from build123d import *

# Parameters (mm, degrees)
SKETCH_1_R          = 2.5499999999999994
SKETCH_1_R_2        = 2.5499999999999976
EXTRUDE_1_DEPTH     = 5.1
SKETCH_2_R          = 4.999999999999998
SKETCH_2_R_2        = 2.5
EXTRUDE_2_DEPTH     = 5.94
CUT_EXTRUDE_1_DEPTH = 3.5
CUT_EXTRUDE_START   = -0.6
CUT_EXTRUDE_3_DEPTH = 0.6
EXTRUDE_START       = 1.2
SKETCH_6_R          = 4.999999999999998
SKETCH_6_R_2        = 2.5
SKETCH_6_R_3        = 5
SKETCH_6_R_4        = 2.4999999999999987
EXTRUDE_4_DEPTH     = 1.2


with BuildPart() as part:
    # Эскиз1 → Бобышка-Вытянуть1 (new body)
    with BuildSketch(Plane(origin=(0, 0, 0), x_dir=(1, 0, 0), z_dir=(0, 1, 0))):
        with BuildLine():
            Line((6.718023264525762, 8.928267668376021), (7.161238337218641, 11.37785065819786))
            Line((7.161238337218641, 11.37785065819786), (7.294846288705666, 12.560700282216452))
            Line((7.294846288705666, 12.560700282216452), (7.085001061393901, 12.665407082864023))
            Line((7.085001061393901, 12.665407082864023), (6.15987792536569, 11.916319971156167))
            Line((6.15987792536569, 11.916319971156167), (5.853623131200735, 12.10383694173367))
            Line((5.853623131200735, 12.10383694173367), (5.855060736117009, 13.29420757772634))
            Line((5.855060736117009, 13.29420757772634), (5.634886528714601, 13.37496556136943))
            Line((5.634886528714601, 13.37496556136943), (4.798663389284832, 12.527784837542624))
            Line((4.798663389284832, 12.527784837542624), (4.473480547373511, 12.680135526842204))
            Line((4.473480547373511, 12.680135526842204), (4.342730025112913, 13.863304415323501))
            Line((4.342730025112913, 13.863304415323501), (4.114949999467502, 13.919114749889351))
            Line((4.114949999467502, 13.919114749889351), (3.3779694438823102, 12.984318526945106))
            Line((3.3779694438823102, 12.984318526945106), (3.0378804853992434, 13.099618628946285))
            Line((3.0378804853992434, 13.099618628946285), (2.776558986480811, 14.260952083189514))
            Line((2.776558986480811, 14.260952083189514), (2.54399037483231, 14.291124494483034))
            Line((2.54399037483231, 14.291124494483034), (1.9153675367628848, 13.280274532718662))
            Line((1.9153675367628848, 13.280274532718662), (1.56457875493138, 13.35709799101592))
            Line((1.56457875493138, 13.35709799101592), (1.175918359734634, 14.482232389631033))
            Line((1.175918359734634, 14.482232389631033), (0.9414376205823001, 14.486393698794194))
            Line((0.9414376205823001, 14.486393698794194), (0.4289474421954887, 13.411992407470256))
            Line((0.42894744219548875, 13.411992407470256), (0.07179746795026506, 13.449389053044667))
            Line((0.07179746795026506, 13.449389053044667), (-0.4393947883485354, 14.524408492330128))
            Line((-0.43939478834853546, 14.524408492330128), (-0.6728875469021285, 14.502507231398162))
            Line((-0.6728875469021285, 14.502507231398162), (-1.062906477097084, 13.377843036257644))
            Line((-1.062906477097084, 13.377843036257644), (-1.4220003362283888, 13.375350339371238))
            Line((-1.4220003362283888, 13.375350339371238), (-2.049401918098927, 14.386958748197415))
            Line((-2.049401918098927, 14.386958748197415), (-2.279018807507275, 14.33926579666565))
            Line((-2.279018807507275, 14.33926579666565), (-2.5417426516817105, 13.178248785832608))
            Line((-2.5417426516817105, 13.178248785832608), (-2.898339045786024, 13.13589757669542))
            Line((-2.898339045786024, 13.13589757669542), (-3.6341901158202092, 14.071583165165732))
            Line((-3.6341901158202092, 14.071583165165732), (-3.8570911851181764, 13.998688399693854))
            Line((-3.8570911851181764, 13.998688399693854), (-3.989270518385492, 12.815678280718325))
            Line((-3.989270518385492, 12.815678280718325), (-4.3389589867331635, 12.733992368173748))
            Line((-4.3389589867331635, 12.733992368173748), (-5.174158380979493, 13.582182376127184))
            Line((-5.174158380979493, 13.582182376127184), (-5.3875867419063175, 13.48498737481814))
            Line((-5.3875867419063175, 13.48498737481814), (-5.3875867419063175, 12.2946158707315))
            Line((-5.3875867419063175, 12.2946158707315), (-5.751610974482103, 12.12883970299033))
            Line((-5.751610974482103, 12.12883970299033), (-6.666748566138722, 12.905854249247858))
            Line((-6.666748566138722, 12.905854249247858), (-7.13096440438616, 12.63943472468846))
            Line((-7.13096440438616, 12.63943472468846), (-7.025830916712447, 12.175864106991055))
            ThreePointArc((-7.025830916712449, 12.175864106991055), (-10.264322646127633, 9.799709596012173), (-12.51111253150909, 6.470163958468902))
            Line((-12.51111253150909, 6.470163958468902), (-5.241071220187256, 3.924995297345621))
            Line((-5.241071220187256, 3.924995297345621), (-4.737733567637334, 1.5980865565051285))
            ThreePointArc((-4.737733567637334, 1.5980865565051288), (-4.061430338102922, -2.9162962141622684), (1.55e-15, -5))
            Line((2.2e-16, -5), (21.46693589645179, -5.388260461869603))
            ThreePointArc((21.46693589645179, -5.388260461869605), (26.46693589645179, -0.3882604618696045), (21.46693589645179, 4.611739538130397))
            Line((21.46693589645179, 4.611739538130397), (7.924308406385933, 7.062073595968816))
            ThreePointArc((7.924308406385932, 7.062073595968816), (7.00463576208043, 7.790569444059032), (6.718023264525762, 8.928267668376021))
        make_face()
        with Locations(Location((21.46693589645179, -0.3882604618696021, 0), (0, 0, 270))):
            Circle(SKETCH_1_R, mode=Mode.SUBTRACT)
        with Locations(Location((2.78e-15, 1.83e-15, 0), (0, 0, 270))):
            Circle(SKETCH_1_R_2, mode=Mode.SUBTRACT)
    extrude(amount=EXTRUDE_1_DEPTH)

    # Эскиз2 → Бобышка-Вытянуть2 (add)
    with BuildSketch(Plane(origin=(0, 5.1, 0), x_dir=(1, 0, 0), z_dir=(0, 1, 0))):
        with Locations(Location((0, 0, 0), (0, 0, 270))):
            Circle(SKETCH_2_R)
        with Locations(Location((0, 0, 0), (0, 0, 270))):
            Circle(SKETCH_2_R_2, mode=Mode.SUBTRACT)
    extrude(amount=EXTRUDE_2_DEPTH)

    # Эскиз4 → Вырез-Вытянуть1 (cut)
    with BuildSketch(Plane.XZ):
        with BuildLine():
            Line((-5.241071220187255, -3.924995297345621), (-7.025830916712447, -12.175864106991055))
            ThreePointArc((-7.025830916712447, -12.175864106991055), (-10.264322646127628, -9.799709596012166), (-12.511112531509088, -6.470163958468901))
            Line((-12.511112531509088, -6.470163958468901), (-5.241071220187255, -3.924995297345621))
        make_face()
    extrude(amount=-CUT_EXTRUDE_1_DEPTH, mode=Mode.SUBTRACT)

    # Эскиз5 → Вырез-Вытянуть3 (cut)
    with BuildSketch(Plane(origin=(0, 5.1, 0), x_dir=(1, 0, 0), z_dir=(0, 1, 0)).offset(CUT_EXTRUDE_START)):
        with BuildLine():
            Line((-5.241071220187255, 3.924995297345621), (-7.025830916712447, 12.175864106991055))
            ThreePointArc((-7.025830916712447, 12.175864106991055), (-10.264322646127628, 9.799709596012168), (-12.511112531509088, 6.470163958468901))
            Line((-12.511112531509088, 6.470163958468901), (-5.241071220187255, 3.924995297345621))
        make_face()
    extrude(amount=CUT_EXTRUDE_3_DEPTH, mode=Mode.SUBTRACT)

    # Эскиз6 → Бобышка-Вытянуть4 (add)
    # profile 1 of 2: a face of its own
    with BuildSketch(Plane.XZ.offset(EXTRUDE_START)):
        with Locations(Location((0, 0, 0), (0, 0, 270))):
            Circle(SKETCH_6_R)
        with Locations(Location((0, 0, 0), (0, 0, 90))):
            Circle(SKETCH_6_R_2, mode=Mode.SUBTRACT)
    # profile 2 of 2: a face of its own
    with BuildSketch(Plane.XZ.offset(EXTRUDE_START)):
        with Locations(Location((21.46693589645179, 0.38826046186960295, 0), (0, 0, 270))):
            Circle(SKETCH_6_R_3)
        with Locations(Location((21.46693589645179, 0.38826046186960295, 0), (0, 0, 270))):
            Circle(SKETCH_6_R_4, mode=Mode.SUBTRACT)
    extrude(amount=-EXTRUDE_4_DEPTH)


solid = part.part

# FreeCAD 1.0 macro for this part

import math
import FreeCAD as App
import Part
import Sketcher

V = App.Vector

doc = App.newDocument("Part")
body = doc.addObject("PartDesign::Body", "Body")

# Sketch on XZ plane
sketch1 = body.newObject("Sketcher::SketchObject", "Sketch")
sketch1.AttachmentSupport = (doc.getObject("XZ_Plane"), [""])
sketch1.MapMode = "FlatFace"
sketch1.addGeometry([
    Part.LineSegment(V(6.718023, -8.928268, 0), V(7.161238, -11.377851, 0)),  # 0
    Part.LineSegment(V(7.161238, -11.377851, 0), V(7.294846, -12.5607, 0)),  # 1
    Part.LineSegment(V(7.294846, -12.5607, 0), V(7.085001, -12.665407, 0)),  # 2
    Part.LineSegment(V(7.085001, -12.665407, 0), V(6.159878, -11.91632, 0)),  # 3
    Part.LineSegment(V(6.159878, -11.91632, 0), V(5.853623, -12.103837, 0)),  # 4
    Part.LineSegment(V(5.853623, -12.103837, 0), V(5.855061, -13.294208, 0)),  # 5
    Part.LineSegment(V(5.855061, -13.294208, 0), V(5.634887, -13.374966, 0)),  # 6
    Part.LineSegment(V(5.634887, -13.374966, 0), V(4.798663, -12.527785, 0)),  # 7
    Part.LineSegment(V(4.798663, -12.527785, 0), V(4.473481, -12.680136, 0)),  # 8
    Part.LineSegment(V(4.473481, -12.680136, 0), V(4.34273, -13.863304, 0)),  # 9
    Part.LineSegment(V(4.34273, -13.863304, 0), V(4.11495, -13.919115, 0)),  # 10
    Part.LineSegment(V(4.11495, -13.919115, 0), V(3.377969, -12.984319, 0)),  # 11
    Part.LineSegment(V(3.377969, -12.984319, 0), V(3.03788, -13.099619, 0)),  # 12
    Part.LineSegment(V(3.03788, -13.099619, 0), V(2.776559, -14.260952, 0)),  # 13
    Part.LineSegment(V(2.776559, -14.260952, 0), V(2.54399, -14.291124, 0)),  # 14
    Part.LineSegment(V(2.54399, -14.291124, 0), V(1.915368, -13.280275, 0)),  # 15
    Part.LineSegment(V(1.915368, -13.280275, 0), V(1.564579, -13.357098, 0)),  # 16
    Part.LineSegment(V(1.564579, -13.357098, 0), V(1.175918, -14.482232, 0)),  # 17
    Part.LineSegment(V(1.175918, -14.482232, 0), V(0.941438, -14.486394, 0)),  # 18
    Part.LineSegment(V(0.941438, -14.486394, 0), V(0.428947, -13.411992, 0)),  # 19
    Part.LineSegment(V(0.428947, -13.411992, 0), V(0.071797, -13.449389, 0)),  # 20
    Part.LineSegment(V(0.071797, -13.449389, 0), V(-0.439395, -14.524408, 0)),  # 21
    Part.LineSegment(V(-0.439395, -14.524408, 0), V(-0.672888, -14.502507, 0)),  # 22
    Part.LineSegment(V(-0.672888, -14.502507, 0), V(-1.062906, -13.377843, 0)),  # 23
    Part.LineSegment(V(-1.062906, -13.377843, 0), V(-1.422, -13.37535, 0)),  # 24
    Part.LineSegment(V(-1.422, -13.37535, 0), V(-2.049402, -14.386959, 0)),  # 25
    Part.LineSegment(V(-2.049402, -14.386959, 0), V(-2.279019, -14.339266, 0)),  # 26
    Part.LineSegment(V(-2.279019, -14.339266, 0), V(-2.541743, -13.178249, 0)),  # 27
    Part.LineSegment(V(-2.541743, -13.178249, 0), V(-2.898339, -13.135898, 0)),  # 28
    Part.LineSegment(V(-2.898339, -13.135898, 0), V(-3.63419, -14.071583, 0)),  # 29
    Part.LineSegment(V(-3.63419, -14.071583, 0), V(-3.857091, -13.998688, 0)),  # 30
    Part.LineSegment(V(-3.857091, -13.998688, 0), V(-3.989271, -12.815678, 0)),  # 31
    Part.LineSegment(V(-3.989271, -12.815678, 0), V(-4.338959, -12.733992, 0)),  # 32
    Part.LineSegment(V(-4.338959, -12.733992, 0), V(-5.174158, -13.582182, 0)),  # 33
    Part.LineSegment(V(-5.174158, -13.582182, 0), V(-5.387587, -13.484987, 0)),  # 34
    Part.LineSegment(V(-5.387587, -13.484987, 0), V(-5.387587, -12.294616, 0)),  # 35
    Part.LineSegment(V(-5.387587, -12.294616, 0), V(-5.751611, -12.12884, 0)),  # 36
    Part.LineSegment(V(-5.751611, -12.12884, 0), V(-6.666749, -12.905854, 0)),  # 37
    Part.LineSegment(V(-6.666749, -12.905854, 0), V(-7.130964, -12.639435, 0)),  # 38
    Part.LineSegment(V(-7.130964, -12.639435, 0), V(-7.025831, -12.175864, 0)),  # 39
    Part.ArcOfCircle(Part.Circle(V(-1.809542, -1.671548, 0), V(0, 0, 1), 11.728185), math.radians(-155.848394), math.radians(-116.408319)),  # 40
    Part.LineSegment(V(-12.511113, -6.470164, 0), V(-5.241071, -3.924995, 0)),  # 41
    Part.LineSegment(V(-5.241071, -3.924995, 0), V(-4.737734, -1.598087, 0)),  # 42
    Part.ArcOfCircle(Part.Circle(V(0, 0, 0), V(0, 0, 1), 5), math.radians(90), math.radians(198.639783)),  # 43
    Part.LineSegment(V(0, 5, 0), V(21.466936, 5.38826, 0)),  # 44
    Part.ArcOfCircle(Part.Circle(V(21.466936, 0.38826, 0), V(0, 0, 1), 5), math.radians(-90), math.radians(90)),  # 45
    Part.LineSegment(V(21.466936, -4.61174, 0), V(7.924308, -7.062074, 0)),  # 46
    Part.ArcOfCircle(Part.Circle(V(8.538236, -8.78187, 0), V(0, 0, 1), 1.826091), math.radians(109.645397), math.radians(184.598331)),  # 47
    Part.Circle(V(21.466936, 0.38826, 0), V(0, 0, 1), 2.55),  # 48
    Part.Circle(V(0, 0, 0), V(0, 0, 1), 2.55),  # 49
], False)
sketch1.addConstraint([
    Sketcher.Constraint("Coincident", 0, 2, 1, 1),
    Sketcher.Constraint("Coincident", 1, 2, 2, 1),
    Sketcher.Constraint("Coincident", 2, 2, 3, 1),
    Sketcher.Constraint("Coincident", 3, 2, 4, 1),
    Sketcher.Constraint("Coincident", 4, 2, 5, 1),
    Sketcher.Constraint("Coincident", 5, 2, 6, 1),
    Sketcher.Constraint("Coincident", 6, 2, 7, 1),
    Sketcher.Constraint("Coincident", 7, 2, 8, 1),
    Sketcher.Constraint("Coincident", 8, 2, 9, 1),
    Sketcher.Constraint("Coincident", 9, 2, 10, 1),
    Sketcher.Constraint("Coincident", 10, 2, 11, 1),
    Sketcher.Constraint("Coincident", 11, 2, 12, 1),
    Sketcher.Constraint("Coincident", 12, 2, 13, 1),
    Sketcher.Constraint("Coincident", 13, 2, 14, 1),
    Sketcher.Constraint("Coincident", 14, 2, 15, 1),
    Sketcher.Constraint("Coincident", 15, 2, 16, 1),
    Sketcher.Constraint("Coincident", 16, 2, 17, 1),
    Sketcher.Constraint("Coincident", 17, 2, 18, 1),
    Sketcher.Constraint("Coincident", 18, 2, 19, 1),
    Sketcher.Constraint("Coincident", 19, 2, 20, 1),
    Sketcher.Constraint("Coincident", 20, 2, 21, 1),
    Sketcher.Constraint("Coincident", 21, 2, 22, 1),
    Sketcher.Constraint("Coincident", 22, 2, 23, 1),
    Sketcher.Constraint("Coincident", 23, 2, 24, 1),
    Sketcher.Constraint("Coincident", 24, 2, 25, 1),
    Sketcher.Constraint("Coincident", 25, 2, 26, 1),
    Sketcher.Constraint("Coincident", 26, 2, 27, 1),
    Sketcher.Constraint("Coincident", 27, 2, 28, 1),
    Sketcher.Constraint("Coincident", 28, 2, 29, 1),
    Sketcher.Constraint("Coincident", 29, 2, 30, 1),
    Sketcher.Constraint("Coincident", 30, 2, 31, 1),
    Sketcher.Constraint("Coincident", 31, 2, 32, 1),
    Sketcher.Constraint("Coincident", 32, 2, 33, 1),
    Sketcher.Constraint("Coincident", 33, 2, 34, 1),
    Sketcher.Constraint("Coincident", 34, 2, 35, 1),
    Sketcher.Constraint("Coincident", 35, 2, 36, 1),
    Sketcher.Constraint("Coincident", 36, 2, 37, 1),
    Sketcher.Constraint("Coincident", 37, 2, 38, 1),
    Sketcher.Constraint("Coincident", 38, 2, 39, 1),
    Sketcher.Constraint("Coincident", 39, 2, 40, 2),
    Sketcher.Constraint("Coincident", 40, 1, 41, 1),
    Sketcher.Constraint("Coincident", 41, 2, 42, 1),
    Sketcher.Constraint("Coincident", 42, 2, 43, 2),
    Sketcher.Constraint("Coincident", 43, 1, 44, 1),
    Sketcher.Constraint("Coincident", 44, 2, 45, 2),
    Sketcher.Constraint("Coincident", 45, 1, 46, 1),
    Sketcher.Constraint("Coincident", 46, 2, 47, 1),
    Sketcher.Constraint("Coincident", 47, 2, 0, 1),
    Sketcher.Constraint("Vertical", 35),
    Sketcher.Constraint("Coincident", 43, 3, -1, 1),
    Sketcher.Constraint("Coincident", 49, 3, -1, 1),
    Sketcher.Constraint("Coincident", 48, 3, 45, 3),
    Sketcher.Constraint("PointOnObject", 43, 1, -2),
    Sketcher.Constraint("Radius", 43, 5.0),
    Sketcher.Constraint("Radius", 45, 5.0),
    Sketcher.Constraint("Diameter", 48, 5.1),
    Sketcher.Constraint("Diameter", 49, 5.1),
    Sketcher.Constraint("Radius", 47, 1.826091),
    Sketcher.Constraint("DistanceX", -1, 1, 2, 2, 7.085001),
    Sketcher.Constraint("DistanceX", 24, 2, -1, 1, 1.422),
    Sketcher.Constraint("Radius", 40, 11.728185),
    Sketcher.Constraint("DistanceY", 35, 1, 35, 2, 1.190372),
    Sketcher.Constraint("DistanceY", 1, 2, -1, 1, 12.5607),
    Sketcher.Constraint("DistanceX", 25, 2, -1, 1, 2.049402),
    Sketcher.Constraint("DistanceX", 47, 3, 45, 3, 12.9287),
    Sketcher.Constraint("DistanceY", 5, 2, 2, 2, 0.6288),
    Sketcher.Constraint("DistanceY", 8, 2, 4, 2, 0.576299),
    Sketcher.Constraint("DistanceY", 12, 2, 11, 2, 0.1153),
    Sketcher.Constraint("DistanceX", 12, 2, 8, 2, 1.4356),
    Sketcher.Constraint("DistanceX", 15, 2, 11, 2, 1.462602),
    Sketcher.Constraint("DistanceX", 16, 2, 12, 2, 1.473302),
    Sketcher.Constraint("DistanceY", 18, 2, 19, 2, 1.074401),
    Sketcher.Constraint("DistanceY", 21, 2, 22, 2, 0.021901),
    Sketcher.Constraint("DistanceX", 25, 2, 20, 2, 2.121199),
    Sketcher.Constraint("DistanceY", 24, 2, 27, 2, 0.197102),
    Sketcher.Constraint("DistanceX", 30, 2, 29, 2, 0.222901),
    Sketcher.Constraint("DistanceX", 33, 2, 32, 2, 0.835199),
    Sketcher.Constraint("DistanceY", 29, 2, 33, 2, 0.489401),
    Sketcher.Constraint("DistanceY", 30, 2, 34, 2, 0.513701),
    Sketcher.Constraint("DistanceY", 39, 2, 40, 1, 5.7057),
    Sketcher.Constraint("DistanceX", 40, 1, 36, 2, 6.759502),
    Sketcher.Constraint("DistanceX", 47, 3, 44, 2, 12.9287),
    Sketcher.Constraint("DistanceX", 47, 3, 45, 1, 12.9287),
    Sketcher.Constraint("DistanceX", 4, 2, 47, 2, 0.8644),
    Sketcher.Constraint("Distance", 1, 1.190372),
    Sketcher.Constraint("Distance", 3, 1.190372),
    Sketcher.Constraint("Distance", 5, 1.190372),
    Sketcher.Constraint("Distance", 7, 1.190372),
    Sketcher.Constraint("Distance", 9, 1.190372),
    Sketcher.Constraint("Distance", 11, 1.190372),
    Sketcher.Constraint("Distance", 13, 1.190372),
    Sketcher.Constraint("Distance", 15, 1.190372),
    Sketcher.Constraint("Distance", 17, 1.190372),
    Sketcher.Constraint("Distance", 19, 1.190372),
    Sketcher.Constraint("Distance", 21, 1.190372),
    Sketcher.Constraint("Distance", 23, 1.190372),
    Sketcher.Constraint("Distance", 25, 1.190372),
    Sketcher.Constraint("Distance", 27, 1.190372),
    Sketcher.Constraint("Distance", 29, 1.190372),
    Sketcher.Constraint("Distance", 31, 1.190372),
    Sketcher.Constraint("Distance", 33, 1.190372),
    Sketcher.Constraint("Distance", 37, 1.200512),
    Sketcher.Constraint("DistanceX", 40, 3, -1, 1, 1.809542),
    Sketcher.Constraint("DistanceY", -1, 1, 45, 3, 0.38826),
    Sketcher.Constraint("DistanceY", 47, 3, -1, 1, 8.78187),
    Sketcher.Constraint("DistanceX", -1, 1, 0, 2, 7.161238),
    Sketcher.Constraint("DistanceY", 0, 2, -1, 1, 11.377851),
    Sketcher.Constraint("DistanceY", 3, 2, -1, 1, 11.91632),
    Sketcher.Constraint("DistanceX", -1, 1, 5, 2, 5.855061),
    Sketcher.Constraint("DistanceX", -1, 1, 8, 2, 4.473481),
    Sketcher.Constraint("DistanceX", -1, 1, 9, 2, 4.34273),
    Sketcher.Constraint("DistanceX", -1, 1, 10, 2, 4.11495),
    Sketcher.Constraint("DistanceX", -1, 1, 11, 2, 3.377969),
    Sketcher.Constraint("DistanceY", 11, 2, -1, 1, 12.984319),
    Sketcher.Constraint("DistanceX", -1, 1, 13, 2, 2.776559),
    Sketcher.Constraint("DistanceX", -1, 1, 14, 2, 2.54399),
    Sketcher.Constraint("DistanceX", -1, 1, 17, 2, 1.175918),
    Sketcher.Constraint("DistanceY", 20, 2, -1, 1, 13.449389),
    Sketcher.Constraint("DistanceY", 21, 2, -1, 1, 14.524408),
    Sketcher.Constraint("DistanceY", 24, 2, -1, 1, 13.37535),
    Sketcher.Constraint("DistanceX", 26, 2, -1, 1, 2.279019),
    Sketcher.Constraint("DistanceX", 28, 2, -1, 1, 2.898339),
    Sketcher.Constraint("DistanceX", 29, 2, -1, 1, 3.63419),
    Sketcher.Constraint("DistanceY", 30, 2, -1, 1, 13.998688),
    Sketcher.Constraint("DistanceX", 31, 2, -1, 1, 3.989271),
    Sketcher.Constraint("DistanceX", 32, 2, -1, 1, 4.338959),
    Sketcher.Constraint("DistanceX", 36, 2, -1, 1, 5.751611),
    Sketcher.Constraint("DistanceY", 36, 2, -1, 1, 12.12884),
    Sketcher.Constraint("DistanceX", 37, 2, -1, 1, 6.666749),
    Sketcher.Constraint("DistanceX", 41, 2, -1, 1, 5.241071),
    Sketcher.Constraint("DistanceX", -1, 1, 46, 2, 7.924308),
    Sketcher.Constraint("DistanceY", 40, 3, 45, 3, 2.059808),
    Sketcher.Constraint("DistanceX", 40, 3, 47, 3, 10.347778),
    Sketcher.Constraint("DistanceY", 2, 2, 40, 3, 10.993859),
    Sketcher.Constraint("DistanceY", 6, 2, 4, 2, 1.271129),
    Sketcher.Constraint("DistanceX", 6, 2, 3, 2, 0.524991),
    Sketcher.Constraint("DistanceX", 7, 2, 4, 2, 1.05496),
    Sketcher.Constraint("DistanceY", 6, 2, 7, 2, 0.847181),
    Sketcher.Constraint("DistanceY", 14, 2, 10, 2, 0.37201),
    Sketcher.Constraint("DistanceY", 16, 2, 12, 2, 0.257479),
    Sketcher.Constraint("DistanceX", 18, 2, 17, 2, 0.234481),
    Sketcher.Constraint("DistanceY", 18, 2, 17, 2, 0.004161),
    Sketcher.Constraint("DistanceX", 23, 2, 22, 2, 0.390019),
    Sketcher.Constraint("DistanceX", 23, 2, 21, 2, 0.623512),
    Sketcher.Constraint("DistanceY", 22, 2, 26, 2, 0.163241),
    Sketcher.Constraint("DistanceY", 27, 2, 28, 2, 0.042351),
    Sketcher.Constraint("DistanceX", 34, 2, 33, 2, 0.213428),
    Sketcher.Constraint("DistanceY", 37, 2, 38, 2, 0.26642),
    Sketcher.Constraint("DistanceX", 40, 1, 38, 2, 5.380148),
    Sketcher.Constraint("DistanceY", 40, 1, 41, 2, 2.545169),
    Sketcher.Constraint("DistanceY", 41, 2, 42, 2, 2.326909),
])
pad1 = body.newObject("PartDesign::Pad", "Pad")
pad1.Profile = sketch1
pad1.Length = 5.1
pad1.Reversed = True

# Sketch on XZ plane
sketch2 = body.newObject("Sketcher::SketchObject", "Sketch001")
sketch2.AttachmentSupport = (doc.getObject("XZ_Plane"), [""])
sketch2.MapMode = "FlatFace"
sketch2.AttachmentOffset = App.Placement(V(0, 0, -5.1), App.Rotation())
sketch2.addGeometry([
    Part.Circle(V(0, 0, 0), V(0, 0, 1), 5),
    Part.Circle(V(0, 0, 0), V(0, 0, 1), 2.5),
], False)
sketch2.addConstraint([
    Sketcher.Constraint("Coincident", 0, 3, -1, 1),
    Sketcher.Constraint("Coincident", 1, 3, -1, 1),
    Sketcher.Constraint("Diameter", 0, 10.0),
    Sketcher.Constraint("Diameter", 1, 5.0),
])
pad2 = body.newObject("PartDesign::Pad", "Pad001")
pad2.Profile = sketch2
pad2.Length = 5.94
pad2.Reversed = True

# Sketch on XZ plane
sketch3 = body.newObject("Sketcher::SketchObject", "Sketch002")
sketch3.AttachmentSupport = (doc.getObject("XZ_Plane"), [""])
sketch3.MapMode = "FlatFace"
sketch3.addGeometry([
    Part.LineSegment(V(-7, -12, 0), V(-5, -4, 0)),
    Part.LineSegment(V(-5, -4, 0), V(-13, -6, 0)),
    Part.ArcOfCircle(Part.Circle(V(-2, -2, 0), V(0, 0, 1), 12), math.radians(-156), math.radians(-116)),
], False)
sketch3.addConstraint([
    Sketcher.Constraint("Coincident", 0, 2, 1, 1),
    Sketcher.Constraint("Coincident", 1, 2, 2, 1),
    Sketcher.Constraint("Coincident", 2, 2, 0, 1),
    Sketcher.Constraint("Radius", 2, 11.728185),
    Sketcher.Constraint("DistanceY", 2, 2, 1, 2, 5.7057),
    Sketcher.Constraint("DistanceX", 2, 3, -1, 1, 1.809542),
    Sketcher.Constraint("DistanceX", 0, 2, -1, 1, 5.241071),
    Sketcher.Constraint("DistanceX", 2, 2, -1, 1, 7.025831),
    Sketcher.Constraint("DistanceY", 1, 2, 0, 2, 2.545169),
    Sketcher.Constraint("DistanceY", 2, 3, -1, 1, 1.671548),
])
pocket1 = body.newObject("PartDesign::Pocket", "Pocket")
pocket1.Profile = sketch3
pocket1.Length = 3.5

# Sketch on XZ plane
sketch4 = body.newObject("Sketcher::SketchObject", "Sketch003")
sketch4.AttachmentSupport = (doc.getObject("XZ_Plane"), [""])
sketch4.MapMode = "FlatFace"
sketch4.AttachmentOffset = App.Placement(V(0, 0, -4.5), App.Rotation())
sketch4.addGeometry([
    Part.LineSegment(V(-5, -4, 0), V(-7, -12, 0)),
    Part.ArcOfCircle(Part.Circle(V(-2, -2, 0), V(0, 0, 1), 12), math.radians(-156), math.radians(-116)),
    Part.LineSegment(V(-13, -6, 0), V(-5, -4, 0)),
], False)
sketch4.addConstraint([
    Sketcher.Constraint("Coincident", 0, 2, 1, 2),
    Sketcher.Constraint("Coincident", 1, 1, 2, 1),
    Sketcher.Constraint("Coincident", 2, 2, 0, 1),
    Sketcher.Constraint("Radius", 1, 11.728185),
    Sketcher.Constraint("DistanceY", 0, 2, 1, 1, 5.7057),
    Sketcher.Constraint("DistanceX", 1, 3, -1, 1, 1.809542),
    Sketcher.Constraint("DistanceX", 0, 2, -1, 1, 7.025831),
    Sketcher.Constraint("DistanceX", 2, 2, -1, 1, 5.241071),
    Sketcher.Constraint("DistanceY", 1, 1, 2, 2, 2.545169),
    Sketcher.Constraint("DistanceY", 1, 3, -1, 1, 1.671548),
])
pocket2 = body.newObject("PartDesign::Pocket", "Pocket001")
pocket2.Profile = sketch4
pocket2.Length = 0.6

# Sketch on XZ plane
sketch5 = body.newObject("Sketcher::SketchObject", "Sketch004")
sketch5.AttachmentSupport = (doc.getObject("XZ_Plane"), [""])
sketch5.MapMode = "FlatFace"
sketch5.AttachmentOffset = App.Placement(V(0, 0, 1.2), App.Rotation())
sketch5.addGeometry([
    Part.Circle(V(0, 0, 0), V(0, 0, 1), 5),
    Part.Circle(V(0, 0, 0), V(0, 0, 1), 2.5),
    Part.Circle(V(21.5, 0.4, 0), V(0, 0, 1), 5),
    Part.Circle(V(21.5, 0.4, 0), V(0, 0, 1), 2.5),
], False)
sketch5.addConstraint([
    Sketcher.Constraint("Coincident", 0, 3, -1, 1),
    Sketcher.Constraint("Coincident", 1, 3, -1, 1),
    Sketcher.Constraint("Coincident", 3, 3, 2, 3),
    Sketcher.Constraint("Equal", 0, 2),
    Sketcher.Constraint("Equal", 1, 3),
    Sketcher.Constraint("Diameter", 0, 10.0),
    Sketcher.Constraint("Diameter", 1, 5.0),
    Sketcher.Constraint("DistanceY", -1, 1, 2, 3, 0.38826),
    Sketcher.Constraint("DistanceX", -1, 1, 2, 3, 21.466936),
])
pad3 = body.newObject("PartDesign::Pad", "Pad002")
pad3.Profile = sketch5
pad3.Length = 1.2
pad3.Reversed = True

doc.recompute()
